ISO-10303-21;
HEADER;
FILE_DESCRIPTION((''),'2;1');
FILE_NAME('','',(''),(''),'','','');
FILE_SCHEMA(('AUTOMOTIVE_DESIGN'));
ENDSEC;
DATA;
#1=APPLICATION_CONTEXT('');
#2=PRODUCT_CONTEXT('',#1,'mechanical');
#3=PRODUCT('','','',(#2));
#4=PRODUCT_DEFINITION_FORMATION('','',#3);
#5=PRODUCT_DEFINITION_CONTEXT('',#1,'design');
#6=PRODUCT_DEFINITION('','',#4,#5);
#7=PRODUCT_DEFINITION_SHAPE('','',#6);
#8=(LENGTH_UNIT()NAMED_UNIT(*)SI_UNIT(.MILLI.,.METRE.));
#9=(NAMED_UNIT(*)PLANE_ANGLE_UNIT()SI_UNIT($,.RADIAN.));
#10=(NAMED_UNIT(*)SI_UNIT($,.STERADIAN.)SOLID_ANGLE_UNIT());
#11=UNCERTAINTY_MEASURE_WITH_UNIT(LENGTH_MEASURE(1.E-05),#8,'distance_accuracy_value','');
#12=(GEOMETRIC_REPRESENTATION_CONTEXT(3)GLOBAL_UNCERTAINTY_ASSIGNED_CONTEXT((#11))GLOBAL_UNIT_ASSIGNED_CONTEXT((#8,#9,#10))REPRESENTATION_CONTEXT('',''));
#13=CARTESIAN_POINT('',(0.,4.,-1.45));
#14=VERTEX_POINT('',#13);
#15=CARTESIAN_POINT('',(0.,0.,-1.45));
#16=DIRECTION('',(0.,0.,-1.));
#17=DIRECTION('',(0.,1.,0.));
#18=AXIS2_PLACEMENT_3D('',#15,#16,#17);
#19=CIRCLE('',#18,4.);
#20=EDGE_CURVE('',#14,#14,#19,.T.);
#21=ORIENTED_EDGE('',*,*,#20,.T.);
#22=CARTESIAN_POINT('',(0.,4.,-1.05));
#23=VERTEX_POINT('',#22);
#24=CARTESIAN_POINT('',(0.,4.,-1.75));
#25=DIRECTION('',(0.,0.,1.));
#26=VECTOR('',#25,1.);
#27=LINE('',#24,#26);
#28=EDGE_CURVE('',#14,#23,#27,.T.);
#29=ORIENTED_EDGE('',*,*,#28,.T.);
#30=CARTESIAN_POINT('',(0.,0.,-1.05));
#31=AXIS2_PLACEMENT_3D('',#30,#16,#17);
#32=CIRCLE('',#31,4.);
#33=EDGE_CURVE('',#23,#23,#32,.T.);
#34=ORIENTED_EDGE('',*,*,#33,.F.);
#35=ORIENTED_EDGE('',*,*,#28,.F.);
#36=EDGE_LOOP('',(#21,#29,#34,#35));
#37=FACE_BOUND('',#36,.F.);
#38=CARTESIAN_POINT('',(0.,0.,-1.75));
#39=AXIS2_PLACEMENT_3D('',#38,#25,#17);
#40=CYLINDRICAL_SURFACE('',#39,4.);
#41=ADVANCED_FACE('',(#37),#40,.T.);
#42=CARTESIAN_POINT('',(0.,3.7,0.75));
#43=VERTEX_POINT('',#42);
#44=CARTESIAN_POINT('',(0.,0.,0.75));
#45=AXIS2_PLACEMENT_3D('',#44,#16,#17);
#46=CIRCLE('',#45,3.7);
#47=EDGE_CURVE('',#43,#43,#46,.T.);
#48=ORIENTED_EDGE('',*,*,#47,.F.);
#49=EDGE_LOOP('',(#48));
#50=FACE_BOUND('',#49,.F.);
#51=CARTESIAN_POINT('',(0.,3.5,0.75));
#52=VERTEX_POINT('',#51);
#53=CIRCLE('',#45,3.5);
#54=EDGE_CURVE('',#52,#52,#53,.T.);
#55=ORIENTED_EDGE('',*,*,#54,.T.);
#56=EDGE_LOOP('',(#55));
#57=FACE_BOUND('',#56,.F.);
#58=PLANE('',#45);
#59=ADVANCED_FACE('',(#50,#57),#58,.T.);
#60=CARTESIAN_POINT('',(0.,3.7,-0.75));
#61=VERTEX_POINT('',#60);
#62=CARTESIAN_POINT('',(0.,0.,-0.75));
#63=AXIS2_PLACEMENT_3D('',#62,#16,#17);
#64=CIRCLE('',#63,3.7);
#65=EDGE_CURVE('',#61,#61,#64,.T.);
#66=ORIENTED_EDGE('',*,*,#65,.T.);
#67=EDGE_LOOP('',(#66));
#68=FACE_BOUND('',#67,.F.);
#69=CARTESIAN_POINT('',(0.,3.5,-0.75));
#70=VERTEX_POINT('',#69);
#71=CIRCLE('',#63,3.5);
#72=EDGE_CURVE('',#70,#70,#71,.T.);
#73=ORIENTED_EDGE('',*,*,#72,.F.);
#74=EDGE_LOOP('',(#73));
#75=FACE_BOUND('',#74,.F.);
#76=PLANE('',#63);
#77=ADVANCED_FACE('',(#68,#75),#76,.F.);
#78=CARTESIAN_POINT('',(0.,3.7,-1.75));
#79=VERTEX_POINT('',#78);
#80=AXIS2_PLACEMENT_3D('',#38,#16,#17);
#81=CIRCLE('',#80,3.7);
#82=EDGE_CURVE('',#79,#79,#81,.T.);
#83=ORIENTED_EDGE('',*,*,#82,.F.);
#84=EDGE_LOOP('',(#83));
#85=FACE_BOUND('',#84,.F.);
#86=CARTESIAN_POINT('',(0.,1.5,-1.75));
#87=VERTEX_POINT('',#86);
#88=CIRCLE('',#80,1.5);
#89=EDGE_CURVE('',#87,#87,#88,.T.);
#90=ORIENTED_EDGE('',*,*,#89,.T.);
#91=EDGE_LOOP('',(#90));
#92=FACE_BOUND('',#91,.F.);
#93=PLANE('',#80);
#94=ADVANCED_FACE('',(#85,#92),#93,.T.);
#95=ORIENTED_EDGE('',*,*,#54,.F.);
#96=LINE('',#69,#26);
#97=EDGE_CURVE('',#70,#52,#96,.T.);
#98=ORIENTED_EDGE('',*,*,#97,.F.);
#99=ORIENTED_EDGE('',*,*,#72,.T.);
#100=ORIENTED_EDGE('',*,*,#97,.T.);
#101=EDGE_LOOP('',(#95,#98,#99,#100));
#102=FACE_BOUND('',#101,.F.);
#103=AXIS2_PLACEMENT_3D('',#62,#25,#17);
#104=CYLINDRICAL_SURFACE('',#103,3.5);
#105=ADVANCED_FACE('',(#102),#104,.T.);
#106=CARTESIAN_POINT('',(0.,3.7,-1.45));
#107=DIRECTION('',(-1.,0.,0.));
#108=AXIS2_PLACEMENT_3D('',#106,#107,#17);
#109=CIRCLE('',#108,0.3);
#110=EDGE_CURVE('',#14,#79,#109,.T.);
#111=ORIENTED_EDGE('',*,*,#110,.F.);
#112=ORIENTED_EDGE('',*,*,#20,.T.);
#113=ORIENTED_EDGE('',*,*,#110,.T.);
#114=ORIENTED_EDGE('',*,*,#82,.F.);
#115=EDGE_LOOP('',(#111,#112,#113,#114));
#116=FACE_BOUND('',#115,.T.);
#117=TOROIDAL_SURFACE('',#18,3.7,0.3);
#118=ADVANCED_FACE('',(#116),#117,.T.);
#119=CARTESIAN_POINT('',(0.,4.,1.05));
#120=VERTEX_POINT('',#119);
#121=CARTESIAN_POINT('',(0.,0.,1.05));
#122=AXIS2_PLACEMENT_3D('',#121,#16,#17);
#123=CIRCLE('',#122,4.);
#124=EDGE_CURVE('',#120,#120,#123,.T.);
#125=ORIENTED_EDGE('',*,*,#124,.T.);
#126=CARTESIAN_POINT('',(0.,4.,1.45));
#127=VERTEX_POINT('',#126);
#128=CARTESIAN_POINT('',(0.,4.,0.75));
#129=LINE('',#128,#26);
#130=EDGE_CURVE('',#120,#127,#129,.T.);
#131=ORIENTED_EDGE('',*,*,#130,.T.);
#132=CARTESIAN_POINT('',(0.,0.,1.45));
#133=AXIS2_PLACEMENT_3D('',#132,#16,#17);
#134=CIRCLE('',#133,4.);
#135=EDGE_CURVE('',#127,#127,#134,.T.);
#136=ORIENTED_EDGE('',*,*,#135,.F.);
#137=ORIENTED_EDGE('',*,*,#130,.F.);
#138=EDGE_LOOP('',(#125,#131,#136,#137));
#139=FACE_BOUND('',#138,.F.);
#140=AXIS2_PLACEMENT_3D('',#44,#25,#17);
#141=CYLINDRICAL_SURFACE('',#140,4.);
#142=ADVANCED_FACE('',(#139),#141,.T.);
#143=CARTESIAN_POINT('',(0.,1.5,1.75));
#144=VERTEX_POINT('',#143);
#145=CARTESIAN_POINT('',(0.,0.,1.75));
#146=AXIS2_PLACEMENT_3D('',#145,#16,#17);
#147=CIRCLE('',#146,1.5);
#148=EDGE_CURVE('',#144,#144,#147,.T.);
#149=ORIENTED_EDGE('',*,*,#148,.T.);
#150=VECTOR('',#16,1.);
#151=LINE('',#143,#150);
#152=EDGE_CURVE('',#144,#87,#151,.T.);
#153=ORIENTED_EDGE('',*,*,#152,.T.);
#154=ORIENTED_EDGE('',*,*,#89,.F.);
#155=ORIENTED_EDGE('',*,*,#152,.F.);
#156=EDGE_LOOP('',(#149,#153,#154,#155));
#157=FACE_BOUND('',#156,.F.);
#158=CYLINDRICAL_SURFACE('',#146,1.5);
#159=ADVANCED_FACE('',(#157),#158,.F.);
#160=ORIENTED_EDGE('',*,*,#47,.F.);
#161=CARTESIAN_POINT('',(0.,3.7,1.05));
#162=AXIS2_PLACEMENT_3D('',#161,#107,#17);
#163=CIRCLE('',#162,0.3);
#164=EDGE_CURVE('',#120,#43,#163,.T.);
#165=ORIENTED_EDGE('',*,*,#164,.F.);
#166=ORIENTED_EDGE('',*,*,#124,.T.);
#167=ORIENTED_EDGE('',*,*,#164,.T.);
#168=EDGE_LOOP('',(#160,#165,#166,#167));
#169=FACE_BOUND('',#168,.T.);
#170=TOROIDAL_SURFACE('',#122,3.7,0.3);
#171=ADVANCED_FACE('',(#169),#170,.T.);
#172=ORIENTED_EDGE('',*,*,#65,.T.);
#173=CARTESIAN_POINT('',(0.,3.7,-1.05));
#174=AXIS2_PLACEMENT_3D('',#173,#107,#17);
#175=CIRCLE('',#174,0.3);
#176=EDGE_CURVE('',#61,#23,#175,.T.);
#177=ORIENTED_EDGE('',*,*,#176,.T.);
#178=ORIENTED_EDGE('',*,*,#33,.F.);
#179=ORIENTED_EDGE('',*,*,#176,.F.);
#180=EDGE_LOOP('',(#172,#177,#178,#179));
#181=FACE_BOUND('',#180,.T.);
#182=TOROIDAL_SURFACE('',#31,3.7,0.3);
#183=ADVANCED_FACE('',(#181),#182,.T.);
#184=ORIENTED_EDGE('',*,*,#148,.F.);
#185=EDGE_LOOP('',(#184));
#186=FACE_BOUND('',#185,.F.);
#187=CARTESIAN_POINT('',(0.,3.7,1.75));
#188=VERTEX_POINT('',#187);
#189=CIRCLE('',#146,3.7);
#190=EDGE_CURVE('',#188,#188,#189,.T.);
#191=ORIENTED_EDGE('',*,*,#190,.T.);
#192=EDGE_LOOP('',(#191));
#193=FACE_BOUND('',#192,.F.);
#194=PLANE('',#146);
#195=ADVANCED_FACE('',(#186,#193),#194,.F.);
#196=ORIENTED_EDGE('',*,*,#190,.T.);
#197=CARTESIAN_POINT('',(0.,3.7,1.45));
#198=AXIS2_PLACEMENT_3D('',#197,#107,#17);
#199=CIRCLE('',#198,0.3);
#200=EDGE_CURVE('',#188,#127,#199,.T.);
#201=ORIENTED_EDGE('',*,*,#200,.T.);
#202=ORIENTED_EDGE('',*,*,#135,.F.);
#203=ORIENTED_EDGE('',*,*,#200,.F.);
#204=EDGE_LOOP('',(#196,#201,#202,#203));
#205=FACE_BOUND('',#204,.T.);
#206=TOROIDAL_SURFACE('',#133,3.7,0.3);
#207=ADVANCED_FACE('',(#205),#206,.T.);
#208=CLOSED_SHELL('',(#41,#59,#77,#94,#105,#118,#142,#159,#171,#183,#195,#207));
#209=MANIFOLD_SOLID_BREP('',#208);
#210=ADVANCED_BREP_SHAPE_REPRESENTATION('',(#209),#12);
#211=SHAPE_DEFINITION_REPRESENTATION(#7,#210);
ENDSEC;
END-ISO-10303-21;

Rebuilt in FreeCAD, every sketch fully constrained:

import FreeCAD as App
import Part
import Sketcher
Q = App.Units.Quantity


def edges_at(feature, points):
    """Names of the edges that pass closest to the given points."""
    edges = feature.Shape.Edges
    near = lambda p: min(range(len(edges)), key=lambda i: edges[i].distToShape(Part.Vertex(*p))[0])
    return sorted({f"Edge{near(p) + 1}" for p in points})

doc = App.newDocument("Part")
params = doc.addObject("Spreadsheet::Sheet", "Params")
for row, (alias, value) in enumerate([
    ("sketch1_width", "0.5 mm"),
    ("sketch1_height", "3.5 mm"),
    ("sketch1_height2", "1.5 mm"),
    ("revolution_angle", "360 deg"),
    ("fillet_radius", "0.3 mm"),
], start=1):
    params.set(f"A{row}", alias)
    params.set(f"B{row}", "=" + value)
    params.setAlias(f"B{row}", alias)

body = doc.addObject("PartDesign::Body", "Body")

sketch1 = doc.addObject("Sketcher::SketchObject", "Sketch")
body.addObject(sketch1)
sketch1.AttachmentSupport = (doc.YZ_Plane, [""])
sketch1.MapMode = "FlatFace"
sketch1.addGeometry(Part.LineSegment(App.Vector(4, 1.8, 0), App.Vector(1.5, 1.8, 0)), False)
sketch1.addGeometry(Part.LineSegment(App.Vector(1.5, 1.8, 0), App.Vector(1.5, -1.8, 0)), False)
sketch1.addGeometry(Part.LineSegment(App.Vector(1.5, -1.8, 0), App.Vector(4, -1.8, 0)), False)
sketch1.addGeometry(Part.LineSegment(App.Vector(4, -1.8, 0), App.Vector(4, -0.8, 0)), False)
sketch1.addGeometry(Part.LineSegment(App.Vector(4, -0.8, 0), App.Vector(3.5, -0.8, 0)), False)
sketch1.addGeometry(Part.LineSegment(App.Vector(3.5, -0.8, 0), App.Vector(3.5, 0.8, 0)), False)
sketch1.addGeometry(Part.LineSegment(App.Vector(3.5, 0.8, 0), App.Vector(4, 0.8, 0)), False)
sketch1.addGeometry(Part.LineSegment(App.Vector(4, 0.8, 0), App.Vector(4, 1.8, 0)), False)
sketch1.addConstraint(Sketcher.Constraint("Coincident", 0, 2, 1, 1))
sketch1.addConstraint(Sketcher.Constraint("Coincident", 1, 2, 2, 1))
sketch1.addConstraint(Sketcher.Constraint("Coincident", 2, 2, 3, 1))
sketch1.addConstraint(Sketcher.Constraint("Coincident", 3, 2, 4, 1))
sketch1.addConstraint(Sketcher.Constraint("Coincident", 4, 2, 5, 1))
sketch1.addConstraint(Sketcher.Constraint("Coincident", 5, 2, 6, 1))
sketch1.addConstraint(Sketcher.Constraint("Coincident", 6, 2, 7, 1))
sketch1.addConstraint(Sketcher.Constraint("Coincident", 7, 2, 0, 1))
sketch1.addConstraint(Sketcher.Constraint("Horizontal", 0))
sketch1.addConstraint(Sketcher.Constraint("Vertical", 1))
sketch1.addConstraint(Sketcher.Constraint("Horizontal", 2))
sketch1.addConstraint(Sketcher.Constraint("Vertical", 3))
sketch1.addConstraint(Sketcher.Constraint("Horizontal", 4))
sketch1.addConstraint(Sketcher.Constraint("Vertical", 5))
sketch1.addConstraint(Sketcher.Constraint("Horizontal", 6))
sketch1.addConstraint(Sketcher.Constraint("Vertical", 7))
sketch1.addConstraint(Sketcher.Constraint("Symmetric", 3, 2, 6, 2, -1))
sketch1.addConstraint(Sketcher.Constraint("Equal", 3, 7))
sketch1.addConstraint(Sketcher.Constraint("DistanceX", 4, 2, 4, 1, Q("0.5 mm")))
sketch1.addConstraint(Sketcher.Constraint("DistanceY", 1, 2, 1, 1, Q("3.5 mm")))
sketch1.addConstraint(Sketcher.Constraint("DistanceY", 5, 1, 5, 2, Q("1.5 mm")))
sketch1.addConstraint(Sketcher.Constraint("DistanceX", -1, 1, 0, 2, Q("1.5 mm")))
sketch1.addConstraint(Sketcher.Constraint("DistanceX", -1, 1, 4, 2, Q("3.5 mm")))
sketch1.setExpression("Constraints[18]", "Params.sketch1_width")
sketch1.setExpression("Constraints[19]", "Params.sketch1_height")
sketch1.setExpression("Constraints[20]", "Params.sketch1_height2")
revolution = doc.addObject("PartDesign::Revolution", "Revolution")
body.addObject(revolution)
revolution.Profile = sketch1
revolution.ReferenceAxis = (sketch1, ["V_Axis"])
revolution.setExpression("Angle", "Params.revolution_angle")
doc.recompute()

fillet = doc.addObject("PartDesign::Fillet", "Fillet")
body.addObject(fillet)
fillet.Base = (revolution, edges_at(revolution, [
    (0, -4, 1.75),
    (0, -4, -1.75),
    (0, -4, -0.75),
    (0, -4, 0.75),
]))
fillet.setExpression("Radius", "Params.fillet_radius")

doc.recompute()
